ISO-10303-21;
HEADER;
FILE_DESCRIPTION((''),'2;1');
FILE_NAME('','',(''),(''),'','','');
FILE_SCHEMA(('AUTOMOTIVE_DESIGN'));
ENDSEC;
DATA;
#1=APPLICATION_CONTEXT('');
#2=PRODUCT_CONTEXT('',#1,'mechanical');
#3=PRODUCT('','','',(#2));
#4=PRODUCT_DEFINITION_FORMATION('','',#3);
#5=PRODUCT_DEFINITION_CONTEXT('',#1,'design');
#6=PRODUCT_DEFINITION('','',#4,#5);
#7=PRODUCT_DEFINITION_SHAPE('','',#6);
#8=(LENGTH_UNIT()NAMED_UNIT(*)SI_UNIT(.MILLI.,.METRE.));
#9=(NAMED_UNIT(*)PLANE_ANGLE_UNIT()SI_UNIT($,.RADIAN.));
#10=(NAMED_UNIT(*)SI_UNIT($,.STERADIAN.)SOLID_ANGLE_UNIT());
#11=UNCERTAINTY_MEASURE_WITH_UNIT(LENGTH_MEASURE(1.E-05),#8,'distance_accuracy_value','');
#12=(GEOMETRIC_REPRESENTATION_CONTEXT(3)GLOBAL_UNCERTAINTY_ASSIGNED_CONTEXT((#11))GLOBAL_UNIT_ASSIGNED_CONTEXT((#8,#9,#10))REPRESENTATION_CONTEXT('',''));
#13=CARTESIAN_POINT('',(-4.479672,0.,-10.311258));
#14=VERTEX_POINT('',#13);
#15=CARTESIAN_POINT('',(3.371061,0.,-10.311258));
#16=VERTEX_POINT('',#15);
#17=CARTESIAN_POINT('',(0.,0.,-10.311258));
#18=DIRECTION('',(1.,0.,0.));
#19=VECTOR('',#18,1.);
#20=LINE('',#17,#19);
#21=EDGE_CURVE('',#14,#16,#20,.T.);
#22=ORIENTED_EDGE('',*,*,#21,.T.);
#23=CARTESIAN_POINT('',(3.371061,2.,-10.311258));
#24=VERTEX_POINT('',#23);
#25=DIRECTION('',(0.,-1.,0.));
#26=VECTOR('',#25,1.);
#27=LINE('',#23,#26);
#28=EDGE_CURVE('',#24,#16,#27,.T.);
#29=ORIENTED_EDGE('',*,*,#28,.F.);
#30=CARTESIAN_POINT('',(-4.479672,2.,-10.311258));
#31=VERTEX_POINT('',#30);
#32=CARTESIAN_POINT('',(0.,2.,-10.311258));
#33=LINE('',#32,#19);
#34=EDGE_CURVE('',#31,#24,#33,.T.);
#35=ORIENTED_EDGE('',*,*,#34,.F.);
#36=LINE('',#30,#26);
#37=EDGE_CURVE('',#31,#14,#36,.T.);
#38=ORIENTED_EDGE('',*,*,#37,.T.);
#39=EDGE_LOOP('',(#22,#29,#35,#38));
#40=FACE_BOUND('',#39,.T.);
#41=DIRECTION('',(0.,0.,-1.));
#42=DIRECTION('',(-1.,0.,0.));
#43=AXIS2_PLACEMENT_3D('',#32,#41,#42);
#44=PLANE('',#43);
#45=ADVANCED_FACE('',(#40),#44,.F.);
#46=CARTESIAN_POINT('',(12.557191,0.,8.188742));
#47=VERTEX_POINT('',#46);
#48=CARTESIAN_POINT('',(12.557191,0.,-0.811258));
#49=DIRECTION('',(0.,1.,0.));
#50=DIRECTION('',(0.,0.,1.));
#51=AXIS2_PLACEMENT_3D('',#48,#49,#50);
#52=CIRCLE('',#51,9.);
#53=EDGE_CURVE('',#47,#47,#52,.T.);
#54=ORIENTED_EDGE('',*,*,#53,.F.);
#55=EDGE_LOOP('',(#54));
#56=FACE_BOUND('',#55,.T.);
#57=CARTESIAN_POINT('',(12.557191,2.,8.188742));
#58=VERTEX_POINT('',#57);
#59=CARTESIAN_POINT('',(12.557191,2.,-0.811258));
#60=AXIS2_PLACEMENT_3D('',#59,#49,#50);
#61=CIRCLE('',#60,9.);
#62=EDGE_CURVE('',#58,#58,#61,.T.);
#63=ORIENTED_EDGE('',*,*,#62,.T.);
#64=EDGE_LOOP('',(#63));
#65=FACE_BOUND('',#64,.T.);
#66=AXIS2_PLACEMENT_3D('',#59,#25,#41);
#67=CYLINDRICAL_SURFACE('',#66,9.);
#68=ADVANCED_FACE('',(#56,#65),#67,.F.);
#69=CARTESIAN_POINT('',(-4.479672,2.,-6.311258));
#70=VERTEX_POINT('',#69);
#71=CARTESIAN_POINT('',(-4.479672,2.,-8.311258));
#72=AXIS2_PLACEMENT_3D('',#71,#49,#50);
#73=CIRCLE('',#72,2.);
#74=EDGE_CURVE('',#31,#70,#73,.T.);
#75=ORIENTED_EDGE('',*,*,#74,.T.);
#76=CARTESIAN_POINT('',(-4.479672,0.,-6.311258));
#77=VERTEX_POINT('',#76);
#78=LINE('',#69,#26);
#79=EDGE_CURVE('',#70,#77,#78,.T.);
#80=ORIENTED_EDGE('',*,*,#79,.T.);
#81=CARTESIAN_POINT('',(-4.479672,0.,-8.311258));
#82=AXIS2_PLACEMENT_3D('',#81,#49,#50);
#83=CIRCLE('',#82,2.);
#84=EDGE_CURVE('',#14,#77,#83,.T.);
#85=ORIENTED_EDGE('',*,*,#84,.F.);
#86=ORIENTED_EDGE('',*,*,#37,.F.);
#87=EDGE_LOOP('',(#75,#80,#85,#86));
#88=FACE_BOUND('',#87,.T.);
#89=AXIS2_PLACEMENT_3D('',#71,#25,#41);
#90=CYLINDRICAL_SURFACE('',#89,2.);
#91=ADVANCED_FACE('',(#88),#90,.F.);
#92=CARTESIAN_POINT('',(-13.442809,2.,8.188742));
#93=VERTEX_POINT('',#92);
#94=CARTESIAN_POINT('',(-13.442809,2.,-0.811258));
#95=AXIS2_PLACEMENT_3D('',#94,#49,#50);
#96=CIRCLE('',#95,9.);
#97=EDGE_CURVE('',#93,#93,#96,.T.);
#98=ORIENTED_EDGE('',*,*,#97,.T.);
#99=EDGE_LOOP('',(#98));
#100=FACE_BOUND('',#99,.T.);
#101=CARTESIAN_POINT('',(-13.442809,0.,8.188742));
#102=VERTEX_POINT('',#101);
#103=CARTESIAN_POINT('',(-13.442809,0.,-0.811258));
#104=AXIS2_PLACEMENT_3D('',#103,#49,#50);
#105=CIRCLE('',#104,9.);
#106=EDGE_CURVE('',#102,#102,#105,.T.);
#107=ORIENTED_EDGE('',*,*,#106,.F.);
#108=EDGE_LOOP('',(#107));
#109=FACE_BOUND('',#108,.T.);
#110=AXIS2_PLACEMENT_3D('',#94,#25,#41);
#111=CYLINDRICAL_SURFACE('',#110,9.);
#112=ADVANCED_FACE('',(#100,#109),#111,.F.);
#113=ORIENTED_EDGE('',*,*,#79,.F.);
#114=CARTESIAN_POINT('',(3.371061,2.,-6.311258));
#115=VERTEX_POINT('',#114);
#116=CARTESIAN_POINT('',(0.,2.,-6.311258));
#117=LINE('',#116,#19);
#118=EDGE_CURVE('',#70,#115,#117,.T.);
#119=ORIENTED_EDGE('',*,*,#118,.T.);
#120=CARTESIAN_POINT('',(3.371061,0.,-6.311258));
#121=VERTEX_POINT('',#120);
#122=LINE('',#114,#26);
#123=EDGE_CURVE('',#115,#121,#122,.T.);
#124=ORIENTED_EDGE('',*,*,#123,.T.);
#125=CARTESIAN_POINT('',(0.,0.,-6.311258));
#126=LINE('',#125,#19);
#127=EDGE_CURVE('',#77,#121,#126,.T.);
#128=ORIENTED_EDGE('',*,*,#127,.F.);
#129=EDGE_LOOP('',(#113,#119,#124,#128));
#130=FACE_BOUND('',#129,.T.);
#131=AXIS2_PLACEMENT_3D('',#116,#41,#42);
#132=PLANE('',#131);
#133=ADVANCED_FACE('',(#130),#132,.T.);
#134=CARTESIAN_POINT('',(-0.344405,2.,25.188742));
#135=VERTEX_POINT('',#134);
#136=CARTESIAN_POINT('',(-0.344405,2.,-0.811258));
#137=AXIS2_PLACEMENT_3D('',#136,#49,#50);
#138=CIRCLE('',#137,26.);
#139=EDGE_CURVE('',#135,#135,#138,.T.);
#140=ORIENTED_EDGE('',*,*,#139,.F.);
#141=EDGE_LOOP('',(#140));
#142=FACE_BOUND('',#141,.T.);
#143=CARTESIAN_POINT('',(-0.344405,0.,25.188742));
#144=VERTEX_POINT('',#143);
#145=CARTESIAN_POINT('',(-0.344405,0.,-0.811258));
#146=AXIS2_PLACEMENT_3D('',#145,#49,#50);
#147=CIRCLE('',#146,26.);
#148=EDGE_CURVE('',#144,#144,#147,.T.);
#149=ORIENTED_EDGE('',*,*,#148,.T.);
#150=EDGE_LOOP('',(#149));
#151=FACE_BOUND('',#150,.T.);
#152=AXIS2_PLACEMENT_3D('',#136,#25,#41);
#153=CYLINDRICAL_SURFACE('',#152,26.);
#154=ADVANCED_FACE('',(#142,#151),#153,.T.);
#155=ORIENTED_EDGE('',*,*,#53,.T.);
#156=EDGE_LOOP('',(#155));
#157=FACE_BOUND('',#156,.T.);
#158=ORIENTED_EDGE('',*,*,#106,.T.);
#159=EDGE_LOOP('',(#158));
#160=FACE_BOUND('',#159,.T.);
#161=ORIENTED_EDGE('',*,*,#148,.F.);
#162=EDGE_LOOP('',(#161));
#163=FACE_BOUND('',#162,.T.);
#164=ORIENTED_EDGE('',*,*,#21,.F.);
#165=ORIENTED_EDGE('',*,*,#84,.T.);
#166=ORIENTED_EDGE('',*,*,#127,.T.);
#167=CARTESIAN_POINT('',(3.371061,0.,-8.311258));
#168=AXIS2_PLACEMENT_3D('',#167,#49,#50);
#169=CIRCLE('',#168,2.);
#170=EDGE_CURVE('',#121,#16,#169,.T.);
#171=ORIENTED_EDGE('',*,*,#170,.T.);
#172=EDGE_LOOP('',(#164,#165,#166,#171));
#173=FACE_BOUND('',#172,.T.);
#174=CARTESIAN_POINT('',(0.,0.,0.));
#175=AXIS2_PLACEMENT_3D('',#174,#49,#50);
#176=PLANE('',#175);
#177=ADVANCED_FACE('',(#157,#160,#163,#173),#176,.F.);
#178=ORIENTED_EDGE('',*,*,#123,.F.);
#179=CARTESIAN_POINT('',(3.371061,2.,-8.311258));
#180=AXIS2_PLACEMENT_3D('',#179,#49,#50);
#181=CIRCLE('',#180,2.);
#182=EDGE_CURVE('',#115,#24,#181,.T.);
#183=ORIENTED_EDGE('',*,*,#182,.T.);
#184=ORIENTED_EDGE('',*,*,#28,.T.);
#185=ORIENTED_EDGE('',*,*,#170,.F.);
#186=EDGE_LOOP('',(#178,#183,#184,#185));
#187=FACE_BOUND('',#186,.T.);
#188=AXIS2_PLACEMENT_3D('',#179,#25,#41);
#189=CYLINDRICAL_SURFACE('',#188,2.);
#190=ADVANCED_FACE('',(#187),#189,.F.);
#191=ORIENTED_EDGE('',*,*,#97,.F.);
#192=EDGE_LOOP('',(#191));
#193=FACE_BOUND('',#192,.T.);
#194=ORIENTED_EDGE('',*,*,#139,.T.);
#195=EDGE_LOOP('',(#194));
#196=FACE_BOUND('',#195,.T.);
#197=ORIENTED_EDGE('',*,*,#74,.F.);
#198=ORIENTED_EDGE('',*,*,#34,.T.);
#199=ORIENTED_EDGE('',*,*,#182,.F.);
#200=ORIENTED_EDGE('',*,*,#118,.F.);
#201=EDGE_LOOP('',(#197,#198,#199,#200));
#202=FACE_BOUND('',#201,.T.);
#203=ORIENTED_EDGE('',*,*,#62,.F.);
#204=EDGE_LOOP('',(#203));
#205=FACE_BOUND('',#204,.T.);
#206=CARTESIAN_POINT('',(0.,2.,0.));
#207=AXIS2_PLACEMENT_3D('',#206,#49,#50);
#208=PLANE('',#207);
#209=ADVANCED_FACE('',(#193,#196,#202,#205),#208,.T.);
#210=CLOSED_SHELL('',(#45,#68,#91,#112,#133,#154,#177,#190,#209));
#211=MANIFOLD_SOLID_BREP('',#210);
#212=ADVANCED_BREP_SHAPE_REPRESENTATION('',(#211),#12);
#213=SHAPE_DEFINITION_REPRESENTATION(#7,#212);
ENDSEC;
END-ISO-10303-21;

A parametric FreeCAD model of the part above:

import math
import FreeCAD as App
import Part
import Sketcher

V = App.Vector

doc = App.newDocument("Part")
body = doc.addObject("PartDesign::Body", "Body")

# Sketch on XZ plane
sketch1 = body.newObject("Sketcher::SketchObject", "Sketch")
sketch1.AttachmentSupport = (doc.getObject("XZ_Plane"), [""])
sketch1.MapMode = "FlatFace"
sketch1.addGeometry(Part.Circle(V(-0.344405, -0.811258, 0), V(0, 0, 1), 26), False)
sketch1.addGeometry(Part.ArcOfCircle(Part.Circle(V(-4.479672, -8.311258, 0), V(0, 0, 1), 2), math.radians(90), math.radians(270)), False)
sketch1.addGeometry(Part.LineSegment(V(-4.479672, -10.311258, 0), V(3.371061, -10.311258, 0)), False)
sketch1.addGeometry(Part.ArcOfCircle(Part.Circle(V(3.371061, -8.311258, 0), V(0, 0, 1), 2), math.radians(-90), math.radians(90)), False)
sketch1.addGeometry(Part.LineSegment(V(3.371061, -6.311258, 0), V(-4.479672, -6.311258, 0)), False)
sketch1.addGeometry(Part.Circle(V(-13.442809, -0.811258, 0), V(0, 0, 1), 9), False)
sketch1.addGeometry(Part.Circle(V(12.557191, -0.811258, 0), V(0, 0, 1), 9), False)
sketch1.addConstraint(Sketcher.Constraint("Tangent", 1, 2, 2, 1))
sketch1.addConstraint(Sketcher.Constraint("Tangent", 2, 2, 3, 1))
sketch1.addConstraint(Sketcher.Constraint("Tangent", 3, 2, 4, 1))
sketch1.addConstraint(Sketcher.Constraint("Tangent", 4, 2, 1, 1))
sketch1.addConstraint(Sketcher.Constraint("Horizontal", 2))
sketch1.addConstraint(Sketcher.Constraint("Horizontal", 4))
sketch1.addConstraint(Sketcher.Constraint("Equal", 5, 6))
sketch1.addConstraint(Sketcher.Constraint("Horizontal", 0, 3, 5, 3))
sketch1.addConstraint(Sketcher.Constraint("Horizontal", 5, 3, 6, 3))
sketch1.addConstraint(Sketcher.Constraint("Diameter", 0, 52.0))
sketch1.addConstraint(Sketcher.Constraint("Diameter", 5, 18.0))
sketch1.addConstraint(Sketcher.Constraint("Radius", 1, 2.0))
sketch1.addConstraint(Sketcher.Constraint("DistanceX", 5, 3, 6, 3, 26.0))
sketch1.addConstraint(Sketcher.Constraint("DistanceY", 1, 3, 0, 3, 7.5))
sketch1.addConstraint(Sketcher.Constraint("DistanceX", 2, 1, 2, 2, 7.850733))
sketch1.addConstraint(Sketcher.Constraint("DistanceY", 0, 3, -1, 1, 0.811258))
sketch1.addConstraint(Sketcher.Constraint("DistanceX", 1, 3, -1, 1, 4.479672))
sketch1.addConstraint(Sketcher.Constraint("DistanceX", 5, 3, -1, 1, 13.442809))
sketch1.addConstraint(Sketcher.Constraint("DistanceX", 0, 3, -1, 1, 0.344405))
pad1 = body.newObject("PartDesign::Pad", "Pad")
pad1.Profile = sketch1
pad1.Length = 2
pad1.Reversed = True

doc.recompute()
